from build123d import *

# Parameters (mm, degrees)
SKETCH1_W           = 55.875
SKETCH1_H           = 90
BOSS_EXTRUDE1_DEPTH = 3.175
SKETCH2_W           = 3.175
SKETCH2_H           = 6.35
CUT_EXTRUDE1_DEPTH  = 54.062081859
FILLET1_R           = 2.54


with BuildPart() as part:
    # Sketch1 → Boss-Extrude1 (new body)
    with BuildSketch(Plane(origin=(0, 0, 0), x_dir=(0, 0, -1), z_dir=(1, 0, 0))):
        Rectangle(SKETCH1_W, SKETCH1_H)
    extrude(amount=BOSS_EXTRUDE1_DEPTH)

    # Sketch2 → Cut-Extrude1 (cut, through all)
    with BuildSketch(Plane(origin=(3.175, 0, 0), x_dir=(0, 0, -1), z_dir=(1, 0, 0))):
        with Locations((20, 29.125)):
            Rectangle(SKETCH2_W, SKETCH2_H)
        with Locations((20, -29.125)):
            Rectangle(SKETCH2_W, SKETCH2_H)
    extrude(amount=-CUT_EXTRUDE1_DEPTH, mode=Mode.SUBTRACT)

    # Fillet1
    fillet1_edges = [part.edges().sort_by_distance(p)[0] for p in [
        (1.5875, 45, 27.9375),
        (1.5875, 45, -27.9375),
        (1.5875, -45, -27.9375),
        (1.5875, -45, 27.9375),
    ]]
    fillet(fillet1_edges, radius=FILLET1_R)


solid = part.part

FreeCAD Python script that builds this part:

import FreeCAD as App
import Part
import Sketcher
from FreeCAD import Vector
Q = App.Units.Quantity


def edges_at(feature, points):
    """Names of the edges that pass closest to the given points."""
    edges = feature.Shape.Edges
    near = lambda p: min(range(len(edges)), key=lambda i: edges[i].distToShape(Part.Vertex(*p))[0])
    return sorted({f"Edge{near(p) + 1}" for p in points})

doc = App.newDocument("Part")
body = doc.addObject("PartDesign::Body", "Body")

# Sketch on YZ plane
sketch1 = body.newObject("Sketcher::SketchObject", "Sketch")
sketch1.AttachmentSupport = (doc.getObject("YZ_Plane"), [""])
sketch1.MapMode = "FlatFace"
sketch1.addGeometry([
    Part.LineSegment(Vector(45, 28, 0), Vector(-45, 28, 0)),
    Part.LineSegment(Vector(-45, 28, 0), Vector(-45, -28, 0)),
    Part.LineSegment(Vector(-45, -28, 0), Vector(45, -28, 0)),
    Part.LineSegment(Vector(45, -28, 0), Vector(45, 28, 0)),
], False)
sketch1.addConstraint([
    Sketcher.Constraint("Coincident", 0, 2, 1, 1),
    Sketcher.Constraint("Coincident", 1, 2, 2, 1),
    Sketcher.Constraint("Coincident", 2, 2, 3, 1),
    Sketcher.Constraint("Coincident", 3, 2, 0, 1),
    Sketcher.Constraint("Horizontal", 0),
    Sketcher.Constraint("Vertical", 1),
    Sketcher.Constraint("Horizontal", 2),
    Sketcher.Constraint("Vertical", 3),
    Sketcher.Constraint("Symmetric", 0, 2, 2, 2, -1, 1),
    Sketcher.Constraint("DistanceX", 0, 2, 0, 1, 90.0),
    Sketcher.Constraint("DistanceY", 1, 2, 1, 1, 55.875),
])
pad1 = body.newObject("PartDesign::Pad", "Pad")
pad1.Profile = sketch1
pad1.Length = Q("0.125 in")

# Sketch on YZ plane
sketch2 = body.newObject("Sketcher::SketchObject", "Sketch001")
sketch2.AttachmentSupport = (doc.getObject("YZ_Plane"), [""])
sketch2.MapMode = "FlatFace"
sketch2.AttachmentOffset = App.Placement(Vector(0, 0, 0.125 * 25.4), App.Rotation())
sketch2.addGeometry([
    Part.LineSegment(Vector(32.3, -18.4, 0), Vector(25.9, -18.4, 0)),  # 0
    Part.LineSegment(Vector(25.9, -18.4, 0), Vector(25.9, -21.6, 0)),  # 1
    Part.LineSegment(Vector(25.9, -21.6, 0), Vector(32.3, -21.6, 0)),  # 2
    Part.LineSegment(Vector(32.3, -21.6, 0), Vector(32.3, -18.4, 0)),  # 3
    Part.LineSegment(Vector(-25.9, -18.4, 0), Vector(-32.3, -18.4, 0)),  # 4
    Part.LineSegment(Vector(-32.3, -18.4, 0), Vector(-32.3, -21.6, 0)),  # 5
    Part.LineSegment(Vector(-32.3, -21.6, 0), Vector(-25.9, -21.6, 0)),  # 6
    Part.LineSegment(Vector(-25.9, -21.6, 0), Vector(-25.9, -18.4, 0)),  # 7
], False)
sketch2.addConstraint([
    Sketcher.Constraint("Coincident", 0, 2, 1, 1),
    Sketcher.Constraint("Coincident", 1, 2, 2, 1),
    Sketcher.Constraint("Coincident", 2, 2, 3, 1),
    Sketcher.Constraint("Coincident", 3, 2, 0, 1),
    Sketcher.Constraint("Coincident", 4, 2, 5, 1),
    Sketcher.Constraint("Coincident", 5, 2, 6, 1),
    Sketcher.Constraint("Coincident", 6, 2, 7, 1),
    Sketcher.Constraint("Coincident", 7, 2, 4, 1),
    Sketcher.Constraint("Horizontal", 0),
    Sketcher.Constraint("Vertical", 1),
    Sketcher.Constraint("Horizontal", 2),
    Sketcher.Constraint("Vertical", 3),
    Sketcher.Constraint("Horizontal", 4),
    Sketcher.Constraint("Vertical", 5),
    Sketcher.Constraint("Horizontal", 6),
    Sketcher.Constraint("Vertical", 7),
    Sketcher.Constraint("Symmetric", 3, 2, 4, 2, -2),
    Sketcher.Constraint("Symmetric", 1, 2, 6, 2, -2),
    Sketcher.Constraint("DistanceX", 0, 2, 0, 1, Q("0.25 in")),
    Sketcher.Constraint("DistanceY", 1, 2, 1, 1, Q("0.125 in")),
    Sketcher.Constraint("DistanceX", -1, 1, 0, 2, 25.95),
    Sketcher.Constraint("DistanceY", 0, 2, -1, 1, 18.4125),
])
pocket1 = body.newObject("PartDesign::Pocket", "Pocket")
pocket1.Profile = sketch2
pocket1.Type = "ThroughAll"
doc.recompute()

fillet = body.newObject("PartDesign::Fillet", "Fillet")
fillet.Base = (pocket1, edges_at(pocket1, [
    (1.587, 45, 27.938),
    (1.587, 45, -27.938),
    (1.587, -45, -27.938),
    (1.587, -45, 27.938),
]))
fillet.Radius = Q("0.1 in")

doc.recompute()
